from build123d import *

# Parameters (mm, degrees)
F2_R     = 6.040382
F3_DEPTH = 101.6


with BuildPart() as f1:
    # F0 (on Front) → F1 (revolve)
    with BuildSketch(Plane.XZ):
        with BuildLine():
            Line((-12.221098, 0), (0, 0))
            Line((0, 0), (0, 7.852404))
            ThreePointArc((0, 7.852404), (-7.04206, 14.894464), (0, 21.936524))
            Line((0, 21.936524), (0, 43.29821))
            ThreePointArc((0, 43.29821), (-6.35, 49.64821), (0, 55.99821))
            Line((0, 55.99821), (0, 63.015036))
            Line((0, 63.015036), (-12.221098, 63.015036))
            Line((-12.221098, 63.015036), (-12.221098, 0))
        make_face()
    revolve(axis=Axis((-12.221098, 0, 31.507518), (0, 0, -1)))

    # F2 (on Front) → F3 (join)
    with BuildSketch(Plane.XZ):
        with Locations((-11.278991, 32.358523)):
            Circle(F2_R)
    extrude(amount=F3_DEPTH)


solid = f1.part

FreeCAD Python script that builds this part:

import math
import FreeCAD as App
import Part
import Sketcher

V = App.Vector
Q = App.Units.Quantity

doc = App.newDocument("Part")
params = doc.addObject("Spreadsheet::Sheet", "Params")
for row, (alias, value) in enumerate([
    ("sketch1_radius", "0.25 in"),
    ("revolution_angle", "360 deg"),
    ("pad1_length", "4 in"),
], start=1):
    params.set(f"A{row}", alias)
    params.set(f"B{row}", "=" + value)
    params.setAlias(f"B{row}", alias)

body = doc.addObject("PartDesign::Body", "Body")

sketch1 = body.newObject("Sketcher::SketchObject", "Sketch")
sketch1.AttachmentSupport = (doc.getObject("XZ_Plane"), [""])
sketch1.MapMode = "FlatFace"
sketch1.addGeometry([
    Part.LineSegment(V(-12, 0, 0), V(0, 0, 0)),
    Part.LineSegment(V(0, 0, 0), V(0, 8, 0)),
    Part.ArcOfCircle(Part.Circle(V(0, 15, 0), V(0, 0, 1), 7), math.radians(90), math.radians(270)),
    Part.LineSegment(V(0, 22, 0), V(0, 43, 0)),
    Part.ArcOfCircle(Part.Circle(V(0, 50, 0), V(0, 0, 1), 6), math.radians(90), math.radians(270)),
    Part.LineSegment(V(0, 56, 0), V(0, 63, 0)),
    Part.LineSegment(V(0, 63, 0), V(-12, 63, 0)),
    Part.LineSegment(V(-12, 63, 0), V(-12, 0, 0)),
], False)
sketch1.addGeometry(Part.LineSegment(V(-12, 63, 0), V(-12, 0, 0)), True)
sketch1.addConstraint([
    Sketcher.Constraint("Coincident", 0, 2, 1, 1),
    Sketcher.Constraint("Coincident", 1, 2, 2, 2),
    Sketcher.Constraint("Coincident", 2, 1, 3, 1),
    Sketcher.Constraint("Coincident", 3, 2, 4, 2),
    Sketcher.Constraint("Coincident", 4, 1, 5, 1),
    Sketcher.Constraint("Coincident", 5, 2, 6, 1),
    Sketcher.Constraint("Coincident", 6, 2, 7, 1),
    Sketcher.Constraint("Coincident", 7, 2, 0, 1),
    Sketcher.Constraint("Horizontal", 0),
    Sketcher.Constraint("Vertical", 1),
    Sketcher.Constraint("Vertical", 3),
    Sketcher.Constraint("Vertical", 5),
    Sketcher.Constraint("Horizontal", 6),
    Sketcher.Constraint("Vertical", 7),
    Sketcher.Constraint("Vertical", 8),
    Sketcher.Constraint("Coincident", 0, 2, -1, 1),
    Sketcher.Constraint("Coincident", 8, 1, 6, 2),
    Sketcher.Constraint("PointOnObject", 2, 3, -2),
    Sketcher.Constraint("PointOnObject", 4, 3, -2),
    Sketcher.Constraint("PointOnObject", 2, 1, -2),
    Sketcher.Constraint("PointOnObject", 4, 1, -2),
    Sketcher.Constraint("PointOnObject", 8, 2, -1),
    Sketcher.Constraint("Radius", 4, Q("0.25 in")),
    Sketcher.Constraint("Radius", 2, Q("7.04206 mm")),
    Sketcher.Constraint("DistanceX", 0, 1, 0, 2, Q("12.221098 mm")),
    Sketcher.Constraint("DistanceY", 1, 1, 1, 2, Q("7.852404 mm")),
    Sketcher.Constraint("DistanceY", 3, 1, 3, 2, Q("21.361686 mm")),
    Sketcher.Constraint("DistanceY", 5, 1, 5, 2, Q("7.016826 mm")),
])
sketch1.setExpression("Constraints[22]", "Params.sketch1_radius")
revolution = body.newObject("PartDesign::Revolution", "Revolution")
revolution.Profile = sketch1
revolution.ReferenceAxis = (sketch1, ["Axis0"])
revolution.setExpression("Angle", "Params.revolution_angle")

sketch2 = body.newObject("Sketcher::SketchObject", "Sketch001")
sketch2.AttachmentSupport = (doc.getObject("XZ_Plane"), [""])
sketch2.MapMode = "FlatFace"
sketch2.addGeometry(Part.Circle(V(-11, 32, 0), V(0, 0, 1), 6), False)
sketch2.addConstraint([
    Sketcher.Constraint("Diameter", 0, Q("12.080764 mm")),
    Sketcher.Constraint("DistanceX", 0, 3, -1, 1, Q("11.278991 mm")),
    Sketcher.Constraint("DistanceY", -1, 1, 0, 3, Q("32.358523 mm")),
])
pad1 = body.newObject("PartDesign::Pad", "Pad")
pad1.Profile = sketch2
pad1.setExpression("Length", "Params.pad1_length")

doc.recompute()
